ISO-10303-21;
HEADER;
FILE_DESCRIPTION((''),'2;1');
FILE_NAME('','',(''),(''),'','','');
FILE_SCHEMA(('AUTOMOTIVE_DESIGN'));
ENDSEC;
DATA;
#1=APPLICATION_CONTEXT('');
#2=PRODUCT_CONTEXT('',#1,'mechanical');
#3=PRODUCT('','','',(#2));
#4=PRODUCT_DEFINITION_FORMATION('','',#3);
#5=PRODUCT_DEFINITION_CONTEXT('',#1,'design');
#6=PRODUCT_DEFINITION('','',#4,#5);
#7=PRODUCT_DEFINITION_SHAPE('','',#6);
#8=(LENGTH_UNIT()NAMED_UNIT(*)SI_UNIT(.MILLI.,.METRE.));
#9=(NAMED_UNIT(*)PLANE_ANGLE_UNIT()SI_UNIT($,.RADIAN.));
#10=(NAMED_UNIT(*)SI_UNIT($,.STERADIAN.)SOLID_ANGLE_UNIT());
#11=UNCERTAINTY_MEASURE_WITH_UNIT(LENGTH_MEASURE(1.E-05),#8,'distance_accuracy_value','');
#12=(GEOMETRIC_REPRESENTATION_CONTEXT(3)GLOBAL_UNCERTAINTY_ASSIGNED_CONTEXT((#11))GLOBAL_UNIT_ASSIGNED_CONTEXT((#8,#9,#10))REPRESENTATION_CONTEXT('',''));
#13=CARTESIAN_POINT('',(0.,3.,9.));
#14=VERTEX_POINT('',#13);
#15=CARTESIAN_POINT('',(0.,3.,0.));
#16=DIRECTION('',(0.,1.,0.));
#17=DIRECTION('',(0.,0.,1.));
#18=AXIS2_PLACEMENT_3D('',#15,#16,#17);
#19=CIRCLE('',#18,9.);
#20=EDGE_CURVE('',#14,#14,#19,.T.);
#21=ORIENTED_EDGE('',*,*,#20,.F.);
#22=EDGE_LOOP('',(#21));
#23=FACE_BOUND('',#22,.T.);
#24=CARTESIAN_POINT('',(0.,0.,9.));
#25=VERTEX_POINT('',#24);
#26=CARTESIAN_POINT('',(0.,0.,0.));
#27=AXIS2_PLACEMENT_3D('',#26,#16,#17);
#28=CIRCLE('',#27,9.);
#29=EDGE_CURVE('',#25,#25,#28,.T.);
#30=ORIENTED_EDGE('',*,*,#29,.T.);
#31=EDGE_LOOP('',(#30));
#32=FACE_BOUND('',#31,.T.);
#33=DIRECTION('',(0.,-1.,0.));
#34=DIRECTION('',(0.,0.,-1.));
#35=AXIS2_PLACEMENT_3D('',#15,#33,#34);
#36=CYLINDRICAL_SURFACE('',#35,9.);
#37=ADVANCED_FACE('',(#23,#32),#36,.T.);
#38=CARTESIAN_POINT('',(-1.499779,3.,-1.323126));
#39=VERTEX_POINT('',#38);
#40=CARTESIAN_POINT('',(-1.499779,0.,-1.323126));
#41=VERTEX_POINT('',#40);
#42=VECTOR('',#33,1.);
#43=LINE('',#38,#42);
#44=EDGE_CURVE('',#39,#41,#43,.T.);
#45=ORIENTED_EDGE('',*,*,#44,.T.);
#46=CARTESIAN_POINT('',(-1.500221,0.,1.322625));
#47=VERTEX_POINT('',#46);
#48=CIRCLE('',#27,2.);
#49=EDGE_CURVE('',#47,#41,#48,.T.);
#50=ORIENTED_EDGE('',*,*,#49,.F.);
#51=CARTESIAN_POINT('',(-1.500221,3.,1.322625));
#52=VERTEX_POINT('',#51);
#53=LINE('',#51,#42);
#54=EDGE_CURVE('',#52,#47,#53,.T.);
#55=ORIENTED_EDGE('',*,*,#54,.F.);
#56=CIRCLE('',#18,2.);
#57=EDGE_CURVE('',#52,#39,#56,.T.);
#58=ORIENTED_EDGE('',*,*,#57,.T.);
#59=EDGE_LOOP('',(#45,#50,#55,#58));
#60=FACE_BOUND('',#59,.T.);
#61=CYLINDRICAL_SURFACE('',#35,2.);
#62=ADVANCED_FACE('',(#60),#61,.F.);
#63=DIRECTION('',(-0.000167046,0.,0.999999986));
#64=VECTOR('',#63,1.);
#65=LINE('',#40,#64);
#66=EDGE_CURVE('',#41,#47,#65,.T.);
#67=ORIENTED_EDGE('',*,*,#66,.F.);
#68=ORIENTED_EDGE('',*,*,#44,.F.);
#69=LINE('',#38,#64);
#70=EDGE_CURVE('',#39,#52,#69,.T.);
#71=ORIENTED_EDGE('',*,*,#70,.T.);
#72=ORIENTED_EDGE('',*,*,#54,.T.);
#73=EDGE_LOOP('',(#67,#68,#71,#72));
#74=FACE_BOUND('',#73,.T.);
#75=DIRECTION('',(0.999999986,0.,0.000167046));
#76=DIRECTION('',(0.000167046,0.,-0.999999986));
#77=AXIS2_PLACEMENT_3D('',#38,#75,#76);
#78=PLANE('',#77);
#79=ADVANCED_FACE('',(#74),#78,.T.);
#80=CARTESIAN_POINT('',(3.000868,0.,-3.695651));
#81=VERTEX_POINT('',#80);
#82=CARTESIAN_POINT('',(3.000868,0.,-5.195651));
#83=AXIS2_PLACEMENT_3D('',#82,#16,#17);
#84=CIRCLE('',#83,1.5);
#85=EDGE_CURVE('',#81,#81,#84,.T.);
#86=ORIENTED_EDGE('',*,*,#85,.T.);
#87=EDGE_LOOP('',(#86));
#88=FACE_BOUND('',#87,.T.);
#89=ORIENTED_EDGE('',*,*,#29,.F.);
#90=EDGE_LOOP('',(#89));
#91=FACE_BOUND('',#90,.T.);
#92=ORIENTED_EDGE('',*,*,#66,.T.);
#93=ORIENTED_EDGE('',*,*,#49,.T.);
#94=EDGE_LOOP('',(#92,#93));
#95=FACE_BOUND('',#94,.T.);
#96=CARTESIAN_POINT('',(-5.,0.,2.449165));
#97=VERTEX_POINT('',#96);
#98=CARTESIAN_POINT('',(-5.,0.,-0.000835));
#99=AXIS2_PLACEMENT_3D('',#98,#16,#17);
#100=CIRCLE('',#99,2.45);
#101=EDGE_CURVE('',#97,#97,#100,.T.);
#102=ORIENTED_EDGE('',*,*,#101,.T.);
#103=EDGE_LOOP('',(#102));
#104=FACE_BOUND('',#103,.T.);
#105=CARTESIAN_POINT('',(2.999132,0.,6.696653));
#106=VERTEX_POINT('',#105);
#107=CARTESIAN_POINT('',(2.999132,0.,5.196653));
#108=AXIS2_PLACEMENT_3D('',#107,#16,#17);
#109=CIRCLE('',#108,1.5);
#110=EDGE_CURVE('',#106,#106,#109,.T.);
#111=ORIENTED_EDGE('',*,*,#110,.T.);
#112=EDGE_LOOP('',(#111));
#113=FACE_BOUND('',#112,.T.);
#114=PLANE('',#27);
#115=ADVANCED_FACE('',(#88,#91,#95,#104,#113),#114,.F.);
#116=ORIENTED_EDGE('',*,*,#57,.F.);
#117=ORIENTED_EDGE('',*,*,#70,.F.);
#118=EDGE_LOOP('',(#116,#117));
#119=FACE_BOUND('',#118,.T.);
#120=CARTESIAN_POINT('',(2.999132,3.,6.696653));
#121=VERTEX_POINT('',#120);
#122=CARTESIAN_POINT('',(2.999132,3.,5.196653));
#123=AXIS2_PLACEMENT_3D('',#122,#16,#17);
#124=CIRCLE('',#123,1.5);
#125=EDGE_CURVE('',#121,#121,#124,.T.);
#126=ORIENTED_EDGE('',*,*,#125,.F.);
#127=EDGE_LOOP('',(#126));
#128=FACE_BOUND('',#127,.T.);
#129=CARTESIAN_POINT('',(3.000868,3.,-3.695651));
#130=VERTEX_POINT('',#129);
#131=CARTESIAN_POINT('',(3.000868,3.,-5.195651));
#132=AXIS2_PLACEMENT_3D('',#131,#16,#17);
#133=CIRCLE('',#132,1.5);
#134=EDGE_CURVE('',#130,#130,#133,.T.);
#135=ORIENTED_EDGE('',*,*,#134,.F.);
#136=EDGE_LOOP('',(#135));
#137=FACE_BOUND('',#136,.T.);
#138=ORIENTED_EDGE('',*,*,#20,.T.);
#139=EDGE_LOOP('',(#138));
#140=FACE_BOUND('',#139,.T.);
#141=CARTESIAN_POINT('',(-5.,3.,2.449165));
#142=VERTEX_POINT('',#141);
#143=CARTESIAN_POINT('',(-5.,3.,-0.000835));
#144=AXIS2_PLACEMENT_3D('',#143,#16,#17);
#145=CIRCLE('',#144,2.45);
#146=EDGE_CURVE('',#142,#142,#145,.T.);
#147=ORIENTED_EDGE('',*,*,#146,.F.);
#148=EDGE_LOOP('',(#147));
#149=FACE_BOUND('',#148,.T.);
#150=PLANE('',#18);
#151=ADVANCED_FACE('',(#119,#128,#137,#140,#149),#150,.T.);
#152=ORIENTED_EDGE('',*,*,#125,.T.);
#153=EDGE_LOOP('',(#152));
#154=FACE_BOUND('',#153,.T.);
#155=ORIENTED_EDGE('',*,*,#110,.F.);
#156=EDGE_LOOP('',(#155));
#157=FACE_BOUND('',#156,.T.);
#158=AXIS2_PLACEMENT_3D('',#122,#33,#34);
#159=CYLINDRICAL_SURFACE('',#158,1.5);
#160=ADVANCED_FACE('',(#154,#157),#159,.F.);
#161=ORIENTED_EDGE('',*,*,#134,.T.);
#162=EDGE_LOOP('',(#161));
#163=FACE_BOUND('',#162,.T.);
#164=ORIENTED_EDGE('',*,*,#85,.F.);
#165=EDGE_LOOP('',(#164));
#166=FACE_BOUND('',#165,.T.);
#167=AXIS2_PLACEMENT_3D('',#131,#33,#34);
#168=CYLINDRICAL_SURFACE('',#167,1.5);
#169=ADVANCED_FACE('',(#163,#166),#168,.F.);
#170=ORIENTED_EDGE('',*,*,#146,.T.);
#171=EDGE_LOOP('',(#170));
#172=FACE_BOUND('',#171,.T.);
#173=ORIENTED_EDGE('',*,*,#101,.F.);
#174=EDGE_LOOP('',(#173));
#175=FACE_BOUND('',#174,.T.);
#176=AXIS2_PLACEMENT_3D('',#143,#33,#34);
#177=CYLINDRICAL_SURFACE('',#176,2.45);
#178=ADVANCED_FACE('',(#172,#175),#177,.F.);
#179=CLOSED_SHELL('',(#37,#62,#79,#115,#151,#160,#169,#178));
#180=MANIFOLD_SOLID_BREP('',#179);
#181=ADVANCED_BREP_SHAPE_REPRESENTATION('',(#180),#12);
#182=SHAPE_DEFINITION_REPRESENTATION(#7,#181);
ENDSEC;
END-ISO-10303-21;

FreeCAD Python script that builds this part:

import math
import FreeCAD as App
import Part
import Sketcher

V = App.Vector
Q = App.Units.Quantity

doc = App.newDocument("Part")
body = doc.addObject("PartDesign::Body", "Body")

sketch1 = body.newObject("Sketcher::SketchObject", "Sketch")
sketch1.AttachmentSupport = (doc.getObject("XZ_Plane"), [""])
sketch1.MapMode = "FlatFace"
sketch1.addGeometry(Part.Circle(V(0, 0, 0), V(0, 0, 1), 9), False)
sketch1.addGeometry(Part.Circle(V(3, 5.2, 0), V(0, 0, 1), 1.5), False)
sketch1.addGeometry(Part.Circle(V(-5, 0, 0), V(0, 0, 1), 2.5), False)
sketch1.addGeometry(Part.LineSegment(V(-1.5, 1.3, 0), V(-1.5, -1.3, 0)), False)
sketch1.addGeometry(Part.ArcOfCircle(Part.Circle(V(0, 0, 0), V(0, 0, 1), 2), math.radians(-139), math.radians(139)), False)
sketch1.addGeometry(Part.Circle(V(3, -5.2, 0), V(0, 0, 1), 1.5), False)
sketch1.addConstraint(Sketcher.Constraint("Coincident", 3, 1, 4, 2))
sketch1.addConstraint(Sketcher.Constraint("Coincident", 4, 1, 3, 2))
sketch1.addConstraint(Sketcher.Constraint("Coincident", 0, 3, -1, 1))
sketch1.addConstraint(Sketcher.Constraint("Coincident", 4, 3, -1, 1))
sketch1.addConstraint(Sketcher.Constraint("Equal", 1, 5))
sketch1.addConstraint(Sketcher.Constraint("Diameter", 0, Q("18 mm")))
sketch1.addConstraint(Sketcher.Constraint("Diameter", 1, Q("3 mm")))
sketch1.addConstraint(Sketcher.Constraint("Radius", 4, Q("2 mm")))
sketch1.addConstraint(Sketcher.Constraint("Diameter", 2, Q("4.9 mm")))
sketch1.addConstraint(Sketcher.Constraint("DistanceX", 2, 3, -1, 1, Q("5 mm")))
sketch1.addConstraint(Sketcher.Constraint("Distance", 3, Q("2.645751 mm")))
sketch1.addConstraint(Sketcher.Constraint("DistanceX", -1, 1, 1, 3, Q("2.999132 mm")))
sketch1.addConstraint(Sketcher.Constraint("DistanceY", 5, 3, -1, 1, Q("5.195651 mm")))
sketch1.addConstraint(Sketcher.Constraint("DistanceX", 3, 1, -1, 1, Q("1.500221 mm")))
sketch1.addConstraint(Sketcher.Constraint("DistanceY", 2, 3, 1, 3, Q("5.197489 mm")))
sketch1.addConstraint(Sketcher.Constraint("DistanceY", 2, 3, 3, 1, Q("1.32346 mm")))
sketch1.addConstraint(Sketcher.Constraint("DistanceX", 3, 1, 5, 3, Q("4.501089 mm")))
pad1 = body.newObject("PartDesign::Pad", "Pad")
pad1.Profile = sketch1
pad1.Length = 3
pad1.Reversed = True

doc.recompute()
